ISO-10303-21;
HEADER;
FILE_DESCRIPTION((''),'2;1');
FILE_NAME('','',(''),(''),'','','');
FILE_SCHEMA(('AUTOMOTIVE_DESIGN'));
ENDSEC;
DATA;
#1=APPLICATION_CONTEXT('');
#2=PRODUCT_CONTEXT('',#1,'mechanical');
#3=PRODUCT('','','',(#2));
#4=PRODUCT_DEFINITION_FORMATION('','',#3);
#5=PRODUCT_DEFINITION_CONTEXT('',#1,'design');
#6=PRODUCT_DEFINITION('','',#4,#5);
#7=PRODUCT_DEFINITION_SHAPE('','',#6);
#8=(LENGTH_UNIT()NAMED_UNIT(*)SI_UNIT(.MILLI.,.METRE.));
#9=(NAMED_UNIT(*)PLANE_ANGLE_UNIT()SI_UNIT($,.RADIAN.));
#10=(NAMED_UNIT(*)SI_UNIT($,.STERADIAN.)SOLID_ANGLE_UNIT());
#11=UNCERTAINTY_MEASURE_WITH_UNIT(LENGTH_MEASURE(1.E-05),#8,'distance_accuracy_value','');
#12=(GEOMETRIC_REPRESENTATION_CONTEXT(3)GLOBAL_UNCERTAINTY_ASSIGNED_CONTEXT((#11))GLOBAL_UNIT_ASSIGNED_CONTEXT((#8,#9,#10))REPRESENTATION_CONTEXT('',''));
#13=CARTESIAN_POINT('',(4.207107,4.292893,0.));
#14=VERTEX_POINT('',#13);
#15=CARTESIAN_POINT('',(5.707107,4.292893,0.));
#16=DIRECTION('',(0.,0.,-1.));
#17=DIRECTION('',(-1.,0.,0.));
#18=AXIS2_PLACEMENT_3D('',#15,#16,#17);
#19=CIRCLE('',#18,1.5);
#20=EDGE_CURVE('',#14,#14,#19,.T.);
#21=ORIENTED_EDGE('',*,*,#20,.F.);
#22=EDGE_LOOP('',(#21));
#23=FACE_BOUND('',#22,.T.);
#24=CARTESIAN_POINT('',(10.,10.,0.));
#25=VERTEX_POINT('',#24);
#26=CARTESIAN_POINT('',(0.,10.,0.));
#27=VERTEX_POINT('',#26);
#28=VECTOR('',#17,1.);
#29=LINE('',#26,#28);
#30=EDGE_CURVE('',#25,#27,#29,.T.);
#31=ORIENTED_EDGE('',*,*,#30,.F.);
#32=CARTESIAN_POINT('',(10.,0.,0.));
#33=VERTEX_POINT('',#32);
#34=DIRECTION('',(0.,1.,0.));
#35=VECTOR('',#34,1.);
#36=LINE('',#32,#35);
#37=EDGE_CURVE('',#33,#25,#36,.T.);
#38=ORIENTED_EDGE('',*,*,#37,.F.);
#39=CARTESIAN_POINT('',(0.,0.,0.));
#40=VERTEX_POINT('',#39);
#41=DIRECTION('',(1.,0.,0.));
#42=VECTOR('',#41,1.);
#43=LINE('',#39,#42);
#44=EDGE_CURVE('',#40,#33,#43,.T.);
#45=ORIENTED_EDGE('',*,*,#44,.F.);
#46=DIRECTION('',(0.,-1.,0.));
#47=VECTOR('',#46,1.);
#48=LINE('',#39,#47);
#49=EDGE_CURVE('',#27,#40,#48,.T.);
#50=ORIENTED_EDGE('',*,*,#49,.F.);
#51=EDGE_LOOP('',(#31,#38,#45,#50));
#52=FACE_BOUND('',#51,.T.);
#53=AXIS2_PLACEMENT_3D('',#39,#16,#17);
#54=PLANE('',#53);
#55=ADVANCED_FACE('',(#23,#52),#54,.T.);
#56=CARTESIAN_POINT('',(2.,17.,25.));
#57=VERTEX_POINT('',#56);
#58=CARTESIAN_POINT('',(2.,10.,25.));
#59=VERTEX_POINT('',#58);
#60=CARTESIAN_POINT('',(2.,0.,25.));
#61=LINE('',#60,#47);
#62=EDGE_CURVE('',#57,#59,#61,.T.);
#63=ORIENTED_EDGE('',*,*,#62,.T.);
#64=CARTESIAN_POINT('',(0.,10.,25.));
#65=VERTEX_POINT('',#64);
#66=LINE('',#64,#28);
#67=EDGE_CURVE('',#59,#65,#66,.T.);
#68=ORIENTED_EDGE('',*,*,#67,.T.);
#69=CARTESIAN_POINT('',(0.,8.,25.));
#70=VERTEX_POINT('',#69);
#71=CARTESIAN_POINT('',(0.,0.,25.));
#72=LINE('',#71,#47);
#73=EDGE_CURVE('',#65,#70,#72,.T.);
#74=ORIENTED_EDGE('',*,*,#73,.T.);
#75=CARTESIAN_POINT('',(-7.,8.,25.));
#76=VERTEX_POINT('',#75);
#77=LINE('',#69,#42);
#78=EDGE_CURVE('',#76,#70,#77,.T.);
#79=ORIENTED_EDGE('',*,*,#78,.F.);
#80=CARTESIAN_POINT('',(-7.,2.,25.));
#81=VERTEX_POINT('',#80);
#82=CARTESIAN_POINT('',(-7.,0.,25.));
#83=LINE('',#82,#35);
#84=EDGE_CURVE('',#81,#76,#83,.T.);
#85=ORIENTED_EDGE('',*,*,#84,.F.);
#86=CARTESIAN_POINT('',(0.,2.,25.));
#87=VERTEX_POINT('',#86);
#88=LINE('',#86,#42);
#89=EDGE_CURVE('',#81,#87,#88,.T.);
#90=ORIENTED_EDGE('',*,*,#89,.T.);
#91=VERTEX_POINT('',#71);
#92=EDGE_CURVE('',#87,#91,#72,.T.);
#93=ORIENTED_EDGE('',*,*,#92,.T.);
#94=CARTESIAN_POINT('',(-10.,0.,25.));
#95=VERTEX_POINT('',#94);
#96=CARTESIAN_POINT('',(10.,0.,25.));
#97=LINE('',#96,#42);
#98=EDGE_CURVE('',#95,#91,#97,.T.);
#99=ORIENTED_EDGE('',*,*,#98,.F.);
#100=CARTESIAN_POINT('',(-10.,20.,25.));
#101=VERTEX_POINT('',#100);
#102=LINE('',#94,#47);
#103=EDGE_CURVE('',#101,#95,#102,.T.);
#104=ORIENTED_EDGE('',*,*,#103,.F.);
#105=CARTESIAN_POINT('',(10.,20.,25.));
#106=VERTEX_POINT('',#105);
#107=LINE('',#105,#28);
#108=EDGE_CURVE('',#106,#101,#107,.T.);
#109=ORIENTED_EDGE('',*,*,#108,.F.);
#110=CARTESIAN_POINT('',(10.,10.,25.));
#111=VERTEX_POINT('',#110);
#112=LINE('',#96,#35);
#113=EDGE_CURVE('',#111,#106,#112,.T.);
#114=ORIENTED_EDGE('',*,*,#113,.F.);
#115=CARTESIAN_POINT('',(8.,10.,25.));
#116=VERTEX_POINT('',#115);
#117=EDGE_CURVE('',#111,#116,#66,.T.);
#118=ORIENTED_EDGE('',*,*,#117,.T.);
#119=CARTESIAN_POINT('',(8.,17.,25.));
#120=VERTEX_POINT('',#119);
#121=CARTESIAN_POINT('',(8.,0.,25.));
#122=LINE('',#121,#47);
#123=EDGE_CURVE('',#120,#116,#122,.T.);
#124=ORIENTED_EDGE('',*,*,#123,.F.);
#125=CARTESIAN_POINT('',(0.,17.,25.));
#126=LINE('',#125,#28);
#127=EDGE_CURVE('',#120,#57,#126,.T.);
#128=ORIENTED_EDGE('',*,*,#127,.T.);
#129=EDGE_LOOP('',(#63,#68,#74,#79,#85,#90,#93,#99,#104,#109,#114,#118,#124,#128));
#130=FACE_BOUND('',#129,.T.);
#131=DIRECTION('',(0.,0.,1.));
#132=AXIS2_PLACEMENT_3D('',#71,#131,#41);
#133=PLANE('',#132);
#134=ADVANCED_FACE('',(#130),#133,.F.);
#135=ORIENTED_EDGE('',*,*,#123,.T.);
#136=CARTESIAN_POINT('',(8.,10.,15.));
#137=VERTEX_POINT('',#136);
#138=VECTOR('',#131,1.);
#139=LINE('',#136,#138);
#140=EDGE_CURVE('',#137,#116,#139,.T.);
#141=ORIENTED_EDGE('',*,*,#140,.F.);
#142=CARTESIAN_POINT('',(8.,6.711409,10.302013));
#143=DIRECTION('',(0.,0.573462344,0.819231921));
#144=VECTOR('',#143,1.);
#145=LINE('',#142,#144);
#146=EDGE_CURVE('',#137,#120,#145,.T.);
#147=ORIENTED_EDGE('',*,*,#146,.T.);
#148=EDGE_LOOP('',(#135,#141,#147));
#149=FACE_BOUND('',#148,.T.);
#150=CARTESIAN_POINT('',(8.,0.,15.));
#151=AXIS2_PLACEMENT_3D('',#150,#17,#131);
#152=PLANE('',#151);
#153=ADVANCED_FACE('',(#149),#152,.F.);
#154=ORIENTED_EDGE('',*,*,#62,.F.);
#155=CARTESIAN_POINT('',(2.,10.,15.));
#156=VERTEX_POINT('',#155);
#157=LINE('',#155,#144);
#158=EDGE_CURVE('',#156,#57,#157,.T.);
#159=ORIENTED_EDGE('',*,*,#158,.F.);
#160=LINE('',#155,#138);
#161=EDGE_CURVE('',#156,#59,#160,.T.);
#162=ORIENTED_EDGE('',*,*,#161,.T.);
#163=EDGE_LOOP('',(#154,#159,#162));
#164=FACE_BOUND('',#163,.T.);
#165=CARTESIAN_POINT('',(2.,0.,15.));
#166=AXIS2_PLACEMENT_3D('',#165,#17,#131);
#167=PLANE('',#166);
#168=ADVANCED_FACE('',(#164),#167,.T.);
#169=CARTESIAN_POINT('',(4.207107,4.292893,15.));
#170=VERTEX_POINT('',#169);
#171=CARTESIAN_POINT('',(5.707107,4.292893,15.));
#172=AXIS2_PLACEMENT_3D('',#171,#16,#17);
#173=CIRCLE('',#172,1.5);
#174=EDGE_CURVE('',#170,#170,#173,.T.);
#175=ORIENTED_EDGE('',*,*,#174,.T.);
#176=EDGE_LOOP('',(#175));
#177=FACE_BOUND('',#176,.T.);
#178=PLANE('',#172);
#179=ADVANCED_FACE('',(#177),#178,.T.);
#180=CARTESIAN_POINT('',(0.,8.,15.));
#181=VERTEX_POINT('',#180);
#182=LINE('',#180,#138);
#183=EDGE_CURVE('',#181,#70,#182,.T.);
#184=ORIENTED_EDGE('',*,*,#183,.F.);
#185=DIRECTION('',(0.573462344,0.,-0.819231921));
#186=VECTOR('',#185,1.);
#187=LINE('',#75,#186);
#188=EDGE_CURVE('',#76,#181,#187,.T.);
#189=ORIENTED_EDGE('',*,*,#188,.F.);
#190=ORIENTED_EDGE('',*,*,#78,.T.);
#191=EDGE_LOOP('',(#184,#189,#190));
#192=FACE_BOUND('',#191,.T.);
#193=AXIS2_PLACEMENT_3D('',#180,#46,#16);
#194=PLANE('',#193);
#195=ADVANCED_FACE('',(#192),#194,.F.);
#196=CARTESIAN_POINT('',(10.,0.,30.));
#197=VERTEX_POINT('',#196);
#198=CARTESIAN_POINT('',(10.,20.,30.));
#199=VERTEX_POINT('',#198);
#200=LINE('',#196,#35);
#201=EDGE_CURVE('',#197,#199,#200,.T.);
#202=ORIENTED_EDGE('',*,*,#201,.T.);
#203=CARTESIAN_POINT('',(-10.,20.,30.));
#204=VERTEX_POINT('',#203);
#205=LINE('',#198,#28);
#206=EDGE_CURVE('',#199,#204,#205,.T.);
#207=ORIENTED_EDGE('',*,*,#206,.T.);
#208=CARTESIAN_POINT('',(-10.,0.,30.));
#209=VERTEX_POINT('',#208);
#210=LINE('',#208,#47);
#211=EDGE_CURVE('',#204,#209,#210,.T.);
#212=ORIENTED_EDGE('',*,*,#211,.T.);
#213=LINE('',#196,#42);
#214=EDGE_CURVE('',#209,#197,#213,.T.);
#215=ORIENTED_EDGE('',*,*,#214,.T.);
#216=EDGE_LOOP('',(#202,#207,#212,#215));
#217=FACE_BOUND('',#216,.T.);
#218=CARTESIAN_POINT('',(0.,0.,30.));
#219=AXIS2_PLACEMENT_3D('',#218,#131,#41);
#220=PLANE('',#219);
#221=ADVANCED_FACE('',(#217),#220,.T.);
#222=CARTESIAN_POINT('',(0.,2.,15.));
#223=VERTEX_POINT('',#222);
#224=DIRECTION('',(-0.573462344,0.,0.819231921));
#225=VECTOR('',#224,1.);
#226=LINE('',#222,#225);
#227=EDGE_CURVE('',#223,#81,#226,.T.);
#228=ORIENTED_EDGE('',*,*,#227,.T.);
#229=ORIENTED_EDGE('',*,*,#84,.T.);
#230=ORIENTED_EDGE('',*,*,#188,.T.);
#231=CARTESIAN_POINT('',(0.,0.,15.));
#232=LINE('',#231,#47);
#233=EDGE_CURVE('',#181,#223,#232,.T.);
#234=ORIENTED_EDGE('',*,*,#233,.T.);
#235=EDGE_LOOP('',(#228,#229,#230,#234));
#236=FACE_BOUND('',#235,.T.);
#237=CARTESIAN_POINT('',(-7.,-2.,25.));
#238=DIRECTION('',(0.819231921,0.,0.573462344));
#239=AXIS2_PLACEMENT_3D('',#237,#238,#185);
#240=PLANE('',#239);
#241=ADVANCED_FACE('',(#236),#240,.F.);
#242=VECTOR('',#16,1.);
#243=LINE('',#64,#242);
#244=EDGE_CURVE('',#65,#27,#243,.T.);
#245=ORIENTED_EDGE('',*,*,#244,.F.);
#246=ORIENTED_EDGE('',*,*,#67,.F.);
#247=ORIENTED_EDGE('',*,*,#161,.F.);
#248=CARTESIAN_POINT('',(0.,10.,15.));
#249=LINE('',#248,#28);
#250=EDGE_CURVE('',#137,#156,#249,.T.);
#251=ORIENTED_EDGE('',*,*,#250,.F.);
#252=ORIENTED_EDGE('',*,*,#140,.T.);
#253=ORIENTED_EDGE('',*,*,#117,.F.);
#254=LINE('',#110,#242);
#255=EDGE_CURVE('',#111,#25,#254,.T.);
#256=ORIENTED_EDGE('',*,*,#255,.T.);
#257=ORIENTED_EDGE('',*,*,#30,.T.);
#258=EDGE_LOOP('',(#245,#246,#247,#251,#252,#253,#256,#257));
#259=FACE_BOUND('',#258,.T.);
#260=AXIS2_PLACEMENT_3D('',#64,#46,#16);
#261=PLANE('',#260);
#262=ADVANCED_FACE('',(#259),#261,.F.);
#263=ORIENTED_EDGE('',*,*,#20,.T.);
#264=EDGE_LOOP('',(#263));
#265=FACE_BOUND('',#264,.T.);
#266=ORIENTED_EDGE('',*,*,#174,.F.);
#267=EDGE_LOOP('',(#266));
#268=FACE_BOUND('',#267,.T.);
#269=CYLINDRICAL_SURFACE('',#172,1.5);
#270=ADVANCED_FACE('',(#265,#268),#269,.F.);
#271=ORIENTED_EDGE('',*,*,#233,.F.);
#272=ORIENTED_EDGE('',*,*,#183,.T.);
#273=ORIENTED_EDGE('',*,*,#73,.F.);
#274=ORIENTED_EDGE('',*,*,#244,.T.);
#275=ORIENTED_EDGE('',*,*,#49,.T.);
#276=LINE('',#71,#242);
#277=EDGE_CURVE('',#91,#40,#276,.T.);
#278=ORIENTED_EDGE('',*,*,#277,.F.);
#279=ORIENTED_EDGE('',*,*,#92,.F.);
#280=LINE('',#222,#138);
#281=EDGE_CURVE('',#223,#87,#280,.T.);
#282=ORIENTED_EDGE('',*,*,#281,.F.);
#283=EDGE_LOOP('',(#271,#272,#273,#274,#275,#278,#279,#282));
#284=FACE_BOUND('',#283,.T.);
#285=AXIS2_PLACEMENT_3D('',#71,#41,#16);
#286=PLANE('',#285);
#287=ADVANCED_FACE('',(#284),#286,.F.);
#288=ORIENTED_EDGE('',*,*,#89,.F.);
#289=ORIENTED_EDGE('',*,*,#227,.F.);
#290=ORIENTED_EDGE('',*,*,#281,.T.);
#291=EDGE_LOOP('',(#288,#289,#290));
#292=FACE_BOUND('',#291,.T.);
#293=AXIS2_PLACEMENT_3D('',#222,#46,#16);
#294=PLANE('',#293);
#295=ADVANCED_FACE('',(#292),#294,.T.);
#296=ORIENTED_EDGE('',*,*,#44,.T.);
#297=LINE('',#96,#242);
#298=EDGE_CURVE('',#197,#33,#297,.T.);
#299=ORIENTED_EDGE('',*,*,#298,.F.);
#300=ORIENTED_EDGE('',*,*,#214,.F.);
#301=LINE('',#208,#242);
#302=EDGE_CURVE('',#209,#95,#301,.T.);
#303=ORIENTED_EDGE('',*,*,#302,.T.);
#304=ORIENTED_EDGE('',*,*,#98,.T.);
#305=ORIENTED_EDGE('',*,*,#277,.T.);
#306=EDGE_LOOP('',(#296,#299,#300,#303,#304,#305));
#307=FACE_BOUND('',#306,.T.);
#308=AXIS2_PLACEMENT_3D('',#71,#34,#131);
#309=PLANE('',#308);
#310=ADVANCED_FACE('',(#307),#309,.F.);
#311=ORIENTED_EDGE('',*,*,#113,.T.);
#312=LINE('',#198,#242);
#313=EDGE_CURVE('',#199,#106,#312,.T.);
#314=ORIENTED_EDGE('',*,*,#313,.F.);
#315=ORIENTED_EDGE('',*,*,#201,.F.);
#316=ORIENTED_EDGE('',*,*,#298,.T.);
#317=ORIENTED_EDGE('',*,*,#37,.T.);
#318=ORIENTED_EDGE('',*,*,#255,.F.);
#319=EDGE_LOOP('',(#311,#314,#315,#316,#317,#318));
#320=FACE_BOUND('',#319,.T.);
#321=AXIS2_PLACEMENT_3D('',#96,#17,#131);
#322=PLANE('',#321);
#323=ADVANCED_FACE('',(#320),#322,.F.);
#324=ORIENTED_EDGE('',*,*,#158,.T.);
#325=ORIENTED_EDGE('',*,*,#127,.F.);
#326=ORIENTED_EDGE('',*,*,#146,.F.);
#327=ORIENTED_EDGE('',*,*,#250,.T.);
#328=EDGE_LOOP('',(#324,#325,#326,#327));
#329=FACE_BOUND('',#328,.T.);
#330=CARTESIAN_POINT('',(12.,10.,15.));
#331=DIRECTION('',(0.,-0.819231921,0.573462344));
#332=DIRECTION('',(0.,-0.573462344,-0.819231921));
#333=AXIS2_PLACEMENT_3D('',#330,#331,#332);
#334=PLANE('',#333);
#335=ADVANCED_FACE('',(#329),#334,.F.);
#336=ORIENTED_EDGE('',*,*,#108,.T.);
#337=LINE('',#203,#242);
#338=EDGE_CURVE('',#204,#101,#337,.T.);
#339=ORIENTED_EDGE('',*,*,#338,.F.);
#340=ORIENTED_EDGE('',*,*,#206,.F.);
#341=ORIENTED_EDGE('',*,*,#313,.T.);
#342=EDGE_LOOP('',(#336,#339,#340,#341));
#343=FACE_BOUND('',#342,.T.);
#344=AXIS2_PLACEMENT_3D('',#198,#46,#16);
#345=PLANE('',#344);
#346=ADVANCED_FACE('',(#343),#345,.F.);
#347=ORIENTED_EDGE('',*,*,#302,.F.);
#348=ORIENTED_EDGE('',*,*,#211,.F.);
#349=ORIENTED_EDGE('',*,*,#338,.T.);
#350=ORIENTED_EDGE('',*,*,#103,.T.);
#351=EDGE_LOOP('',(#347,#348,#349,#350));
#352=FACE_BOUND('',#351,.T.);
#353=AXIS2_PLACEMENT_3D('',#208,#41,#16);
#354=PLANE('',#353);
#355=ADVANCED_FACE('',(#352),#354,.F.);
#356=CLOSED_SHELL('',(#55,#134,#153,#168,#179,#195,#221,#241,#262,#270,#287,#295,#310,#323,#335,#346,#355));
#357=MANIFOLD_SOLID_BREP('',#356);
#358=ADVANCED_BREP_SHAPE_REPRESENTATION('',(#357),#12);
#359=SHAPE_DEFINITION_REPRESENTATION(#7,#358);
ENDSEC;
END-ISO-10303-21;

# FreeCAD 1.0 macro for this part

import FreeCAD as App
import Part
import Sketcher

doc = App.newDocument("Part")
body = doc.addObject("PartDesign::Body", "Body")

# Sketch on XY plane
sketch1 = body.newObject("Sketcher::SketchObject", "Sketch")
sketch1.AttachmentSupport = (doc.getObject("XY_Plane"), [""])
sketch1.MapMode = "FlatFace"
sketch1.addGeometry(Part.LineSegment(App.Vector(0, 10, 0), App.Vector(0, 0, 0)), False)
sketch1.addGeometry(Part.LineSegment(App.Vector(0, 0, 0), App.Vector(10, 0, 0)), False)
sketch1.addGeometry(Part.LineSegment(App.Vector(10, 0, 0), App.Vector(10, 10, 0)), False)
sketch1.addGeometry(Part.LineSegment(App.Vector(10, 10, 0), App.Vector(0, 10, 0)), False)
sketch1.addConstraint(Sketcher.Constraint("Coincident", 0, 2, 1, 1))
sketch1.addConstraint(Sketcher.Constraint("Coincident", 1, 2, 2, 1))
sketch1.addConstraint(Sketcher.Constraint("Coincident", 2, 2, 3, 1))
sketch1.addConstraint(Sketcher.Constraint("Coincident", 3, 2, 0, 1))
sketch1.addConstraint(Sketcher.Constraint("Vertical", 0))
sketch1.addConstraint(Sketcher.Constraint("Horizontal", 1))
sketch1.addConstraint(Sketcher.Constraint("Vertical", 2))
sketch1.addConstraint(Sketcher.Constraint("Horizontal", 3))
sketch1.addConstraint(Sketcher.Constraint("Coincident", 0, 2, -1, 1))
sketch1.addConstraint(Sketcher.Constraint("Equal", 3, 0))
sketch1.addConstraint(Sketcher.Constraint("DistanceX", 1, 1, 1, 2, 10.0))
pad1 = body.newObject("PartDesign::Pad", "Pad")
pad1.Profile = sketch1
pad1.Length = 25

# Sketch on XY plane
sketch2 = body.newObject("Sketcher::SketchObject", "Sketch001")
sketch2.AttachmentSupport = (doc.getObject("XY_Plane"), [""])
sketch2.MapMode = "FlatFace"
sketch2.addGeometry(Part.Circle(App.Vector(5.7, 4.3, 0), App.Vector(0, 0, 1), 1.5), False)
sketch2.addConstraint(Sketcher.Constraint("Diameter", 0, 3.0))
sketch2.addConstraint(Sketcher.Constraint("DistanceX", -1, 1, 0, 3, 5.707107))
sketch2.addConstraint(Sketcher.Constraint("DistanceY", -1, 1, 0, 3, 4.292893))
pocket1 = body.newObject("PartDesign::Pocket", "Pocket")
pocket1.Profile = sketch2
pocket1.Length = 15
pocket1.Reversed = True

# Sketch on XY plane
sketch3 = body.newObject("Sketcher::SketchObject", "Sketch002")
sketch3.AttachmentSupport = (doc.getObject("XY_Plane"), [""])
sketch3.MapMode = "FlatFace"
sketch3.AttachmentOffset = App.Placement(App.Vector(0, 0, 25), App.Rotation())
sketch3.addGeometry(Part.LineSegment(App.Vector(-10, 20, 0), App.Vector(-10, 0, 0)), False)
sketch3.addGeometry(Part.LineSegment(App.Vector(-10, 0, 0), App.Vector(10, 0, 0)), False)
sketch3.addGeometry(Part.LineSegment(App.Vector(10, 0, 0), App.Vector(10, 20, 0)), False)
sketch3.addGeometry(Part.LineSegment(App.Vector(10, 20, 0), App.Vector(-10, 20, 0)), False)
sketch3.addConstraint(Sketcher.Constraint("Coincident", 0, 2, 1, 1))
sketch3.addConstraint(Sketcher.Constraint("Coincident", 1, 2, 2, 1))
sketch3.addConstraint(Sketcher.Constraint("Coincident", 2, 2, 3, 1))
sketch3.addConstraint(Sketcher.Constraint("Coincident", 3, 2, 0, 1))
sketch3.addConstraint(Sketcher.Constraint("Vertical", 0))
sketch3.addConstraint(Sketcher.Constraint("Horizontal", 1))
sketch3.addConstraint(Sketcher.Constraint("Vertical", 2))
sketch3.addConstraint(Sketcher.Constraint("Horizontal", 3))
sketch3.addConstraint(Sketcher.Constraint("Symmetric", 0, 2, 1, 2, -1, 1))
sketch3.addConstraint(Sketcher.Constraint("Equal", 3, 0))
sketch3.addConstraint(Sketcher.Constraint("DistanceX", 1, 1, 1, 2, 20.0))
pad2 = body.newObject("PartDesign::Pad", "Pad001")
pad2.Profile = sketch3
pad2.Length = 5

# Sketch on XY plane
sketch4 = body.newObject("Sketcher::SketchObject", "Sketch003")
sketch4.AttachmentSupport = (doc.getObject("XY_Plane"), [""])
sketch4.MapMode = "FlatFace"
sketch4.AttachmentOffset = App.Placement(App.Vector(0, 0, 25), App.Rotation())
sketch4.addGeometry(Part.LineSegment(App.Vector(0, 8, 0), App.Vector(0, 2, 0)), False)
sketch4.addGeometry(Part.LineSegment(App.Vector(0, 2, 0), App.Vector(-7, 2, 0)), False)
sketch4.addGeometry(Part.LineSegment(App.Vector(-7, 2, 0), App.Vector(-7, 8, 0)), False)
sketch4.addGeometry(Part.LineSegment(App.Vector(-7, 8, 0), App.Vector(0, 8, 0)), False)
sketch4.addGeometry(Part.LineSegment(App.Vector(2, 10, 0), App.Vector(2, 17, 0)), False)
sketch4.addGeometry(Part.LineSegment(App.Vector(2, 17, 0), App.Vector(8, 17, 0)), False)
sketch4.addGeometry(Part.LineSegment(App.Vector(8, 17, 0), App.Vector(8, 10, 0)), False)
sketch4.addGeometry(Part.LineSegment(App.Vector(8, 10, 0), App.Vector(2, 10, 0)), False)
sketch4.addConstraint(Sketcher.Constraint("Coincident", 0, 2, 1, 1))
sketch4.addConstraint(Sketcher.Constraint("Coincident", 1, 2, 2, 1))
sketch4.addConstraint(Sketcher.Constraint("Coincident", 2, 2, 3, 1))
sketch4.addConstraint(Sketcher.Constraint("Coincident", 3, 2, 0, 1))
sketch4.addConstraint(Sketcher.Constraint("Coincident", 4, 2, 5, 1))
sketch4.addConstraint(Sketcher.Constraint("Coincident", 5, 2, 6, 1))
sketch4.addConstraint(Sketcher.Constraint("Coincident", 6, 2, 7, 1))
sketch4.addConstraint(Sketcher.Constraint("Coincident", 7, 2, 4, 1))
sketch4.addConstraint(Sketcher.Constraint("Vertical", 0))
sketch4.addConstraint(Sketcher.Constraint("Horizontal", 1))
sketch4.addConstraint(Sketcher.Constraint("Vertical", 2))
sketch4.addConstraint(Sketcher.Constraint("Horizontal", 3))
sketch4.addConstraint(Sketcher.Constraint("Vertical", 4))
sketch4.addConstraint(Sketcher.Constraint("Horizontal", 5))
sketch4.addConstraint(Sketcher.Constraint("Vertical", 6))
sketch4.addConstraint(Sketcher.Constraint("Horizontal", 7))
sketch4.addConstraint(Sketcher.Constraint("PointOnObject", 0, 2, -2))
sketch4.addConstraint(Sketcher.Constraint("Equal", 7, 0))
sketch4.addConstraint(Sketcher.Constraint("Equal", 3, 4))
sketch4.addConstraint(Sketcher.Constraint("DistanceX", 1, 2, 1, 1, 7.0))
sketch4.addConstraint(Sketcher.Constraint("DistanceX", 5, 1, 5, 2, 6.0))
sketch4.addConstraint(Sketcher.Constraint("DistanceY", -1, 1, 0, 2, 2.0))
sketch4.addConstraint(Sketcher.Constraint("DistanceX", -1, 1, 4, 2, 2.0))
sketch4.addConstraint(Sketcher.Constraint("DistanceY", -1, 1, 4, 2, 17.0))
pad3 = body.newObject("PartDesign::Pad", "Pad002")
pad3.Profile = sketch4
pad3.Length = 10
pad3.Reversed = True

# Sketch on XZ plane
sketch5 = body.newObject("Sketcher::SketchObject", "Sketch004")
sketch5.AttachmentSupport = (doc.getObject("XZ_Plane"), [""])
sketch5.MapMode = "FlatFace"
sketch5.AttachmentOffset = App.Placement(App.Vector(0, 0, -8), App.Rotation())
sketch5.addGeometry(Part.LineSegment(App.Vector(-7, 25, 0), App.Vector(0, 15, 0)), False)
sketch5.addGeometry(Part.LineSegment(App.Vector(0, 15, 0), App.Vector(-7, 15, 0)), False)
sketch5.addGeometry(Part.LineSegment(App.Vector(-7, 15, 0), App.Vector(-7, 25, 0)), False)
sketch5.addConstraint(Sketcher.Constraint("Coincident", 0, 2, 1, 1))
sketch5.addConstraint(Sketcher.Constraint("Coincident", 1, 2, 2, 1))
sketch5.addConstraint(Sketcher.Constraint("Coincident", 2, 2, 0, 1))
sketch5.addConstraint(Sketcher.Constraint("Horizontal", 1))
sketch5.addConstraint(Sketcher.Constraint("Vertical", 2))
sketch5.addConstraint(Sketcher.Constraint("PointOnObject", 0, 2, -2))
sketch5.addConstraint(Sketcher.Constraint("DistanceX", 1, 2, 1, 1, 7.0))
sketch5.addConstraint(Sketcher.Constraint("DistanceY", 2, 1, 2, 2, 10.0))
sketch5.addConstraint(Sketcher.Constraint("DistanceY", -1, 1, 0, 2, 15.0))
pocket2 = body.newObject("PartDesign::Pocket", "Pocket001")
pocket2.Profile = sketch5
pocket2.Length = 10
pocket2.Reversed = True

# Sketch on YZ plane
sketch6 = body.newObject("Sketcher::SketchObject", "Sketch005")
sketch6.AttachmentSupport = (doc.getObject("YZ_Plane"), [""])
sketch6.MapMode = "FlatFace"
sketch6.AttachmentOffset = App.Placement(App.Vector(0, 0, 2), App.Rotation())
sketch6.addGeometry(Part.LineSegment(App.Vector(10, 15, 0), App.Vector(17, 25, 0)), False)
sketch6.addGeometry(Part.LineSegment(App.Vector(17, 25, 0), App.Vector(17, 15, 0)), False)
sketch6.addGeometry(Part.LineSegment(App.Vector(17, 15, 0), App.Vector(10, 15, 0)), False)
sketch6.addConstraint(Sketcher.Constraint("Coincident", 0, 2, 1, 1))
sketch6.addConstraint(Sketcher.Constraint("Coincident", 1, 2, 2, 1))
sketch6.addConstraint(Sketcher.Constraint("Coincident", 2, 2, 0, 1))
sketch6.addConstraint(Sketcher.Constraint("Vertical", 1))
sketch6.addConstraint(Sketcher.Constraint("Horizontal", 2))
sketch6.addConstraint(Sketcher.Constraint("DistanceX", 2, 2, 2, 1, 7.0))
sketch6.addConstraint(Sketcher.Constraint("DistanceY", 1, 2, 1, 1, 10.0))
sketch6.addConstraint(Sketcher.Constraint("DistanceX", -1, 1, 0, 2, 17.0))
sketch6.addConstraint(Sketcher.Constraint("DistanceY", -1, 1, 0, 2, 25.0))
pocket3 = body.newObject("PartDesign::Pocket", "Pocket002")
pocket3.Profile = sketch6
pocket3.Length = 10
pocket3.Reversed = True

doc.recompute()
